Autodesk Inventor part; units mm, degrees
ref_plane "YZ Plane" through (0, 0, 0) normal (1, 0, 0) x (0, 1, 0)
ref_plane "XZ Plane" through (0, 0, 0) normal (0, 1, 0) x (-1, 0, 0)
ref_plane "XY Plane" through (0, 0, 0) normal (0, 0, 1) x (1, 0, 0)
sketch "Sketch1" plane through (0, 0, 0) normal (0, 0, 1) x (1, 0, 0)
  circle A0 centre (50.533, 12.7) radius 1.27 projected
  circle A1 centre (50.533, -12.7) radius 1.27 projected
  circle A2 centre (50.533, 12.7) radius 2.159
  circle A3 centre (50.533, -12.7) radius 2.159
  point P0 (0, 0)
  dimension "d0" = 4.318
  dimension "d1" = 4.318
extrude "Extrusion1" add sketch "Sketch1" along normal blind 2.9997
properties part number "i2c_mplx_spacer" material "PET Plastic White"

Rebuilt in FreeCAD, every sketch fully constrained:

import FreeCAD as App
import Part
import Sketcher

V = App.Vector
Q = App.Units.Quantity

doc = App.newDocument("Part")
body = doc.addObject("PartDesign::Body", "Body")
body.AllowCompound = True

# Sketch on XY plane
sketch1 = body.newObject("Sketcher::SketchObject", "Sketch")
sketch1.AttachmentSupport = (doc.getObject("XY_Plane"), [""])
sketch1.MapMode = "FlatFace"
sketch1.addGeometry([
    Part.Circle(V(50.5, 12.7, 0), V(0, 0, 1), 2.2),
    Part.Circle(V(50.5, 12.7, 0), V(0, 0, 1), 1.3),
    Part.Circle(V(50.5, -12.7, 0), V(0, 0, 1), 2.2),
    Part.Circle(V(50.5, -12.7, 0), V(0, 0, 1), 1.3),
], False)
sketch1.addConstraint([
    Sketcher.Constraint("Coincident", 1, 3, 0, 3),
    Sketcher.Constraint("Coincident", 3, 3, 2, 3),
    Sketcher.Constraint("Equal", 0, 2),
    Sketcher.Constraint("Equal", 1, 3),
    Sketcher.Constraint("Symmetric", 0, 3, 2, 3, -1),
    Sketcher.Constraint("Diameter", 0, Q("0.17 in")),
    Sketcher.Constraint("Diameter", 1, Q("0.1 in")),
    Sketcher.Constraint("DistanceY", 2, 3, 0, 3, Q("1 in")),
    Sketcher.Constraint("DistanceX", -1, 1, 0, 3, Q("1.9895 in")),
])
pad1 = body.newObject("PartDesign::Pad", "Pad")
pad1.Profile = sketch1
pad1.Length = Q("0.1180984 in")

doc.recompute()
